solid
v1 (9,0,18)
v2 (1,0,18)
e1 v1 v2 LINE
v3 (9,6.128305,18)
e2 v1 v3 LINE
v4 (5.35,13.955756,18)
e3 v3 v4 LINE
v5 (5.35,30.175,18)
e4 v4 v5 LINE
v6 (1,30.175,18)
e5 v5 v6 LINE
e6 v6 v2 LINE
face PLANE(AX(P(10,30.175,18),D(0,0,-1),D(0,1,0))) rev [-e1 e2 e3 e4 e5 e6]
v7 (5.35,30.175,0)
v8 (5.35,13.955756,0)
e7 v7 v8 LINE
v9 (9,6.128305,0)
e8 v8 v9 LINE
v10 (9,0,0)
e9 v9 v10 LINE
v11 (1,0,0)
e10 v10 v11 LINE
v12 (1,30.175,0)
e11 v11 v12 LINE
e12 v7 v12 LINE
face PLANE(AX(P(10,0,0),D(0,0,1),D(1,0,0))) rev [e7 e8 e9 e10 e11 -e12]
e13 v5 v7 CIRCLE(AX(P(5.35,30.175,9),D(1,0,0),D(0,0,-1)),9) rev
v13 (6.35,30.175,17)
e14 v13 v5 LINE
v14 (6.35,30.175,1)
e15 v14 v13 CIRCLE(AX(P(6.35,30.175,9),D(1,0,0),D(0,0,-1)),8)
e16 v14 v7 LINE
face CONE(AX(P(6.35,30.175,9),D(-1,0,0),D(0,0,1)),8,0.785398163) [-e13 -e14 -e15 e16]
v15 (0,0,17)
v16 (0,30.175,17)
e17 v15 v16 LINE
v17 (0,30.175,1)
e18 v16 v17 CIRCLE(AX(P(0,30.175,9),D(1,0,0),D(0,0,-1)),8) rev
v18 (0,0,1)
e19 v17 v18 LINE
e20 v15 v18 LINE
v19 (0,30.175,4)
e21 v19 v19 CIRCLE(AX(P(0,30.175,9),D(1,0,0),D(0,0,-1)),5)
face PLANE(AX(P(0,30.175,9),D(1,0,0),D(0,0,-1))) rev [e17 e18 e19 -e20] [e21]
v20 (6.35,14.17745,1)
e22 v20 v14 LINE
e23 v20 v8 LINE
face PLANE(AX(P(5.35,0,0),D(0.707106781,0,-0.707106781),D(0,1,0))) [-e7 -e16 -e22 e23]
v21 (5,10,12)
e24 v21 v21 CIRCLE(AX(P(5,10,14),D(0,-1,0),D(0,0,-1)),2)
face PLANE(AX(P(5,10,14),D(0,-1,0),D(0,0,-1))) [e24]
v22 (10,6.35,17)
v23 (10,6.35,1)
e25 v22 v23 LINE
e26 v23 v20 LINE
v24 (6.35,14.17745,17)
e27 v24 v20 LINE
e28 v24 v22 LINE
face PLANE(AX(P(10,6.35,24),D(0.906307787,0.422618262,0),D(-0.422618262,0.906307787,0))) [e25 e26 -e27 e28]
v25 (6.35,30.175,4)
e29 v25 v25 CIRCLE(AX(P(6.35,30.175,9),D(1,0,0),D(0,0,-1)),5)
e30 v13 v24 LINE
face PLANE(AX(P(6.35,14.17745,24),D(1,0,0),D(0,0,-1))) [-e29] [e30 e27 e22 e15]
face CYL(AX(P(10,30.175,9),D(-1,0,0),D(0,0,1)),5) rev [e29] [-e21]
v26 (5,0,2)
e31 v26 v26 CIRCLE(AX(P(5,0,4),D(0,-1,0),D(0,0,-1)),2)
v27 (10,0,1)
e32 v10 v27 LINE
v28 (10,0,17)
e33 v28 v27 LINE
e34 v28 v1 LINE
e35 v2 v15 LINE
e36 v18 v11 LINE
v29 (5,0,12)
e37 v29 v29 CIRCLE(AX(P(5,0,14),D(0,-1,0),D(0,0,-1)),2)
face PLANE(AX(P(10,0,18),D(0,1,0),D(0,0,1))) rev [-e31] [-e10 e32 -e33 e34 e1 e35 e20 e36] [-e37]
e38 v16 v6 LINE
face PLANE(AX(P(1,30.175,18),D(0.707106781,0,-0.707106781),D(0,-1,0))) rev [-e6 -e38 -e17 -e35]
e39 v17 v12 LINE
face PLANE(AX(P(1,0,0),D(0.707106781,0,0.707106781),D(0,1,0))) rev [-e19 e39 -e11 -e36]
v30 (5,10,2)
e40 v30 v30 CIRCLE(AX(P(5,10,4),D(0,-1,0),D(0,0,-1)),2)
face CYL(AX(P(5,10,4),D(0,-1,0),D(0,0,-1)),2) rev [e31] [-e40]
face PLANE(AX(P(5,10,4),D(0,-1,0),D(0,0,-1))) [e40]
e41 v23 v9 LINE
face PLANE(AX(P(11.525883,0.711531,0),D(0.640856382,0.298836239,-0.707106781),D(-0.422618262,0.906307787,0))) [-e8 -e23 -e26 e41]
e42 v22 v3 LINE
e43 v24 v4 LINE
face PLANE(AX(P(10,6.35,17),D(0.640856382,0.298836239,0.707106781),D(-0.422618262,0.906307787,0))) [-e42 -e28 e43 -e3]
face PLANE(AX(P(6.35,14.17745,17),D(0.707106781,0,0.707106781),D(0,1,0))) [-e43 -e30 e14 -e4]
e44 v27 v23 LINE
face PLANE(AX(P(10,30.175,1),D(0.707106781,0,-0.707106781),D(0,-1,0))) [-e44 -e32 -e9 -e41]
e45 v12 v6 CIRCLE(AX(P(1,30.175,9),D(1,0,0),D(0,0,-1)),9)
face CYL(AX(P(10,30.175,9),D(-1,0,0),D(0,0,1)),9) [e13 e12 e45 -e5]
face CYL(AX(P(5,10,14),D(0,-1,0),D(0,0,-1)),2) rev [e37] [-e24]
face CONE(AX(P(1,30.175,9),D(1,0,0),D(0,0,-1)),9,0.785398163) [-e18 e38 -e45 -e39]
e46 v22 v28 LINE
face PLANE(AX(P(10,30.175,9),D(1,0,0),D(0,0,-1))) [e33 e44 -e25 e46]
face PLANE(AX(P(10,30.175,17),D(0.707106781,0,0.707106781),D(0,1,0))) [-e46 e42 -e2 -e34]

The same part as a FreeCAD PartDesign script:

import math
import FreeCAD as App
import Part
import Sketcher

V = App.Vector
Q = App.Units.Quantity


def edges_at(feature, points):
    """Names of the edges that pass closest to the given points."""
    edges = feature.Shape.Edges
    near = lambda p: min(range(len(edges)), key=lambda i: edges[i].distToShape(Part.Vertex(*p))[0])
    return sorted({f"Edge{near(p) + 1}" for p in points})

doc = App.newDocument("Part")
body = doc.addObject("PartDesign::Body", "Body")

# Sketch on YZ plane
sketch1 = body.newObject("Sketcher::SketchObject", "Sketch")
sketch1.AttachmentSupport = (doc.getObject("YZ_Plane"), [""])
sketch1.MapMode = "FlatFace"
sketch1.addGeometry(Part.LineSegment(V(30, 18, 0), V(0, 18, 0)), False)
sketch1.addGeometry(Part.LineSegment(V(0, 18, 0), V(0, 0, 0)), False)
sketch1.addGeometry(Part.LineSegment(V(0, 0, 0), V(30, 0, 0)), False)
sketch1.addGeometry(Part.ArcOfCircle(Part.Circle(V(30, 9, 0), V(0, 0, 1), 9), math.radians(-90), math.radians(90)), False)
sketch1.addGeometry(Part.Circle(V(30, 9, 0), V(0, 0, 1), 5), False)
sketch1.addConstraint(Sketcher.Constraint("Coincident", 0, 2, 1, 1))
sketch1.addConstraint(Sketcher.Constraint("Coincident", 1, 2, 2, 1))
sketch1.addConstraint(Sketcher.Constraint("Tangent", 2, 2, 3, 1))
sketch1.addConstraint(Sketcher.Constraint("Tangent", 3, 2, 0, 1))
sketch1.addConstraint(Sketcher.Constraint("Horizontal", 0))
sketch1.addConstraint(Sketcher.Constraint("Vertical", 1))
sketch1.addConstraint(Sketcher.Constraint("Horizontal", 2))
sketch1.addConstraint(Sketcher.Constraint("Coincident", 1, 2, -1, 1))
sketch1.addConstraint(Sketcher.Constraint("Coincident", 4, 3, 3, 3))
sketch1.addConstraint(Sketcher.Constraint("Diameter", 4, Q("10 mm")))
sketch1.addConstraint(Sketcher.Constraint("Radius", 3, Q("9 mm")))
sketch1.addConstraint(Sketcher.Constraint("DistanceX", 0, 2, 0, 1, Q("30.175 mm")))
pad1 = body.newObject("PartDesign::Pad", "Pad")
pad1.Profile = sketch1
pad1.Length = 10

# Sketch on XZ plane
sketch2 = body.newObject("Sketcher::SketchObject", "Sketch001")
sketch2.AttachmentSupport = (doc.getObject("XZ_Plane"), [""])
sketch2.MapMode = "FlatFace"
sketch2.addGeometry(Part.Circle(V(5, 4, 0), V(0, 0, 1), 2), False)
sketch2.addGeometry(Part.Circle(V(5, 14, 0), V(0, 0, 1), 2), False)
sketch2.addConstraint(Sketcher.Constraint("Equal", 0, 1))
sketch2.addConstraint(Sketcher.Constraint("Vertical", 0, 3, 1, 3))
sketch2.addConstraint(Sketcher.Constraint("Diameter", 0, Q("4 mm")))
sketch2.addConstraint(Sketcher.Constraint("DistanceX", -1, 1, 0, 3, Q("5 mm")))
sketch2.addConstraint(Sketcher.Constraint("DistanceY", -1, 1, 0, 3, Q("4 mm")))
sketch2.addConstraint(Sketcher.Constraint("DistanceY", -1, 1, 1, 3, Q("14 mm")))
pocket1 = body.newObject("PartDesign::Pocket", "Pocket")
pocket1.Profile = sketch2
pocket1.Length = 10

# Sketch on XY plane
sketch3 = body.newObject("Sketcher::SketchObject", "Sketch002")
sketch3.AttachmentSupport = (doc.getObject("XY_Plane"), [""])
sketch3.MapMode = "FlatFace"
sketch3.addGeometry(Part.LineSegment(V(6.3, 14.2, 0), V(10, 6.3, 0)), False)
sketch3.addGeometry(Part.LineSegment(V(10, 6.3, 0), V(10, 39.2, 0)), False)
sketch3.addGeometry(Part.LineSegment(V(10, 39.2, 0), V(6.3, 39.2, 0)), False)
sketch3.addGeometry(Part.LineSegment(V(6.3, 39.2, 0), V(6.3, 14.2, 0)), False)
sketch3.addConstraint(Sketcher.Constraint("Coincident", 0, 2, 1, 1))
sketch3.addConstraint(Sketcher.Constraint("Coincident", 1, 2, 2, 1))
sketch3.addConstraint(Sketcher.Constraint("Coincident", 2, 2, 3, 1))
sketch3.addConstraint(Sketcher.Constraint("Coincident", 3, 2, 0, 1))
sketch3.addConstraint(Sketcher.Constraint("Vertical", 1))
sketch3.addConstraint(Sketcher.Constraint("Horizontal", 2))
sketch3.addConstraint(Sketcher.Constraint("Vertical", 3))
sketch3.addConstraint(Sketcher.Constraint("Angle", 0, Q("-65 deg")))
sketch3.addConstraint(Sketcher.Constraint("DistanceX", -1, 1, 0, 2, Q("10 mm")))
sketch3.addConstraint(Sketcher.Constraint("DistanceX", 2, 2, 2, 1, Q("3.65 mm")))
sketch3.addConstraint(Sketcher.Constraint("DistanceY", 1, 1, 1, 2, Q("32.825 mm")))
sketch3.addConstraint(Sketcher.Constraint("DistanceY", -1, 1, 0, 2, Q("6.35 mm")))
pocket2 = body.newObject("PartDesign::Pocket", "Pocket001")
pocket2.Profile = sketch3
pocket2.Length = 24
pocket2.Reversed = True
doc.recompute()

chamfer = body.newObject("PartDesign::Chamfer", "Chamfer")
chamfer.Base = (pocket2, edges_at(pocket2, [
    (10, 3.175, 0),
    (10, 3.175, 18),
    (8.175, 10.264, 0),
    (6.35, 22.176, 0),
    (6.35, 39.175, 9),
    (6.35, 22.176, 18),
    (8.175, 10.264, 18),
    (0, 15.088, 0),
    (0, 15.088, 18),
    (0, 39.175, 9),
]))
chamfer.Size = 1

doc.recompute()
